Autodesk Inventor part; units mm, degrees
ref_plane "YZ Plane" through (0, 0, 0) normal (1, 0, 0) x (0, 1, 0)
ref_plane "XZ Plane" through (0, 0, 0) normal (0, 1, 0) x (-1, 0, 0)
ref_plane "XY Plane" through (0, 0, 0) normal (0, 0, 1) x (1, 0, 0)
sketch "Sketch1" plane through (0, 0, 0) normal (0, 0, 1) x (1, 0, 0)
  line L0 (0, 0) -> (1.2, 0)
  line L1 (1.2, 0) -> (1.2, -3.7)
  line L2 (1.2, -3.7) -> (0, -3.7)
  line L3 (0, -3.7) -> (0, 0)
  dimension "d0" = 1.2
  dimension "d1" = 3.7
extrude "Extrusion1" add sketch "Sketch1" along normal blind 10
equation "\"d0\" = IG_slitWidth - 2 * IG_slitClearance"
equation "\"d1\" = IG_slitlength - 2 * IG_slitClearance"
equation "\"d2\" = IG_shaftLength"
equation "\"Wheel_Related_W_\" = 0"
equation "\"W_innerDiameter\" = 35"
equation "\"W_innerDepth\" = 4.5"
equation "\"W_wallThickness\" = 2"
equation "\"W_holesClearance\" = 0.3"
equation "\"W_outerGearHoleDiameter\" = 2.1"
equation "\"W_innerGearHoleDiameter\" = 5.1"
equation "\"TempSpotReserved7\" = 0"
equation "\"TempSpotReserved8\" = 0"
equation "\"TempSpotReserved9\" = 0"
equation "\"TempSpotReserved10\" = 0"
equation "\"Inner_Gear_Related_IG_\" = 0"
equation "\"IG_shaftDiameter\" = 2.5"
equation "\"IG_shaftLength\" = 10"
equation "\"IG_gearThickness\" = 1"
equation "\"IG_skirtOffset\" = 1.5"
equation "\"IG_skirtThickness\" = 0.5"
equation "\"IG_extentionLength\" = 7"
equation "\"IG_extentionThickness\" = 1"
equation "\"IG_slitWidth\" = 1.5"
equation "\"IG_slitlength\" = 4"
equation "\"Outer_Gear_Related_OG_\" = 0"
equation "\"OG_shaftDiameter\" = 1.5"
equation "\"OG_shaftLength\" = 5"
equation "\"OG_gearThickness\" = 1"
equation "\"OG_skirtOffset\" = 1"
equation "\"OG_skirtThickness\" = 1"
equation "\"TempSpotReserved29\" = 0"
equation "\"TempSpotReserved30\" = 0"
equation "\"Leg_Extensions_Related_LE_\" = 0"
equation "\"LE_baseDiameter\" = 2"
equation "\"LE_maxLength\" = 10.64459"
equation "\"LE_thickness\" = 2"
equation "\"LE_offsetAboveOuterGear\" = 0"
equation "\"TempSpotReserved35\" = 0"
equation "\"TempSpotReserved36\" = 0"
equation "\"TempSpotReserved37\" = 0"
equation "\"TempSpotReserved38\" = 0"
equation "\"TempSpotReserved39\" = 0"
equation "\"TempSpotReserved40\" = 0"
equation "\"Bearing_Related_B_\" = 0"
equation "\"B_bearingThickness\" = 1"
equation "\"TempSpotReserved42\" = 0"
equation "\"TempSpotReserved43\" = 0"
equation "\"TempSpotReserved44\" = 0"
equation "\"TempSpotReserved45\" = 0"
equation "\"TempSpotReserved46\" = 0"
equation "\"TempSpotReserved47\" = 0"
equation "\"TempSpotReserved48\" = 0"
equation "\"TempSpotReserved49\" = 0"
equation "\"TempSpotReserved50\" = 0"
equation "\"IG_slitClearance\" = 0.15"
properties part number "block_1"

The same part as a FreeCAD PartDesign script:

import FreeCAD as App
import Part
import Sketcher
from FreeCAD import Vector

doc = App.newDocument("Part")
body = doc.addObject("PartDesign::Body", "Body")

# Sketch on XY plane
sketch1 = doc.addObject("Sketcher::SketchObject", "Sketch")
body.addObject(sketch1)
sketch1.AttachmentSupport = (doc.XY_Plane, [""])
sketch1.MapMode = "FlatFace"
sketch1.addGeometry([
    Part.LineSegment(Vector(1.2, 0, 0), Vector(0, 0, 0)),
    Part.LineSegment(Vector(0, 0, 0), Vector(0, -3.7, 0)),
    Part.LineSegment(Vector(0, -3.7, 0), Vector(1.2, -3.7, 0)),
    Part.LineSegment(Vector(1.2, -3.7, 0), Vector(1.2, 0, 0)),
], False)
sketch1.addConstraint([
    Sketcher.Constraint("Coincident", 0, 2, 1, 1),
    Sketcher.Constraint("Coincident", 1, 2, 2, 1),
    Sketcher.Constraint("Coincident", 2, 2, 3, 1),
    Sketcher.Constraint("Coincident", 3, 2, 0, 1),
    Sketcher.Constraint("Horizontal", 0),
    Sketcher.Constraint("Vertical", 1),
    Sketcher.Constraint("Horizontal", 2),
    Sketcher.Constraint("Vertical", 3),
    Sketcher.Constraint("Coincident", 0, 2, -1, 1),
    Sketcher.Constraint("DistanceX", 0, 2, 0, 1, 1.2),
    Sketcher.Constraint("DistanceY", 1, 2, 1, 1, 3.7),
])
pad1 = doc.addObject("PartDesign::Pad", "Pad")
body.addObject(pad1)
pad1.Profile = sketch1
pad1.Length = 10

doc.recompute()
